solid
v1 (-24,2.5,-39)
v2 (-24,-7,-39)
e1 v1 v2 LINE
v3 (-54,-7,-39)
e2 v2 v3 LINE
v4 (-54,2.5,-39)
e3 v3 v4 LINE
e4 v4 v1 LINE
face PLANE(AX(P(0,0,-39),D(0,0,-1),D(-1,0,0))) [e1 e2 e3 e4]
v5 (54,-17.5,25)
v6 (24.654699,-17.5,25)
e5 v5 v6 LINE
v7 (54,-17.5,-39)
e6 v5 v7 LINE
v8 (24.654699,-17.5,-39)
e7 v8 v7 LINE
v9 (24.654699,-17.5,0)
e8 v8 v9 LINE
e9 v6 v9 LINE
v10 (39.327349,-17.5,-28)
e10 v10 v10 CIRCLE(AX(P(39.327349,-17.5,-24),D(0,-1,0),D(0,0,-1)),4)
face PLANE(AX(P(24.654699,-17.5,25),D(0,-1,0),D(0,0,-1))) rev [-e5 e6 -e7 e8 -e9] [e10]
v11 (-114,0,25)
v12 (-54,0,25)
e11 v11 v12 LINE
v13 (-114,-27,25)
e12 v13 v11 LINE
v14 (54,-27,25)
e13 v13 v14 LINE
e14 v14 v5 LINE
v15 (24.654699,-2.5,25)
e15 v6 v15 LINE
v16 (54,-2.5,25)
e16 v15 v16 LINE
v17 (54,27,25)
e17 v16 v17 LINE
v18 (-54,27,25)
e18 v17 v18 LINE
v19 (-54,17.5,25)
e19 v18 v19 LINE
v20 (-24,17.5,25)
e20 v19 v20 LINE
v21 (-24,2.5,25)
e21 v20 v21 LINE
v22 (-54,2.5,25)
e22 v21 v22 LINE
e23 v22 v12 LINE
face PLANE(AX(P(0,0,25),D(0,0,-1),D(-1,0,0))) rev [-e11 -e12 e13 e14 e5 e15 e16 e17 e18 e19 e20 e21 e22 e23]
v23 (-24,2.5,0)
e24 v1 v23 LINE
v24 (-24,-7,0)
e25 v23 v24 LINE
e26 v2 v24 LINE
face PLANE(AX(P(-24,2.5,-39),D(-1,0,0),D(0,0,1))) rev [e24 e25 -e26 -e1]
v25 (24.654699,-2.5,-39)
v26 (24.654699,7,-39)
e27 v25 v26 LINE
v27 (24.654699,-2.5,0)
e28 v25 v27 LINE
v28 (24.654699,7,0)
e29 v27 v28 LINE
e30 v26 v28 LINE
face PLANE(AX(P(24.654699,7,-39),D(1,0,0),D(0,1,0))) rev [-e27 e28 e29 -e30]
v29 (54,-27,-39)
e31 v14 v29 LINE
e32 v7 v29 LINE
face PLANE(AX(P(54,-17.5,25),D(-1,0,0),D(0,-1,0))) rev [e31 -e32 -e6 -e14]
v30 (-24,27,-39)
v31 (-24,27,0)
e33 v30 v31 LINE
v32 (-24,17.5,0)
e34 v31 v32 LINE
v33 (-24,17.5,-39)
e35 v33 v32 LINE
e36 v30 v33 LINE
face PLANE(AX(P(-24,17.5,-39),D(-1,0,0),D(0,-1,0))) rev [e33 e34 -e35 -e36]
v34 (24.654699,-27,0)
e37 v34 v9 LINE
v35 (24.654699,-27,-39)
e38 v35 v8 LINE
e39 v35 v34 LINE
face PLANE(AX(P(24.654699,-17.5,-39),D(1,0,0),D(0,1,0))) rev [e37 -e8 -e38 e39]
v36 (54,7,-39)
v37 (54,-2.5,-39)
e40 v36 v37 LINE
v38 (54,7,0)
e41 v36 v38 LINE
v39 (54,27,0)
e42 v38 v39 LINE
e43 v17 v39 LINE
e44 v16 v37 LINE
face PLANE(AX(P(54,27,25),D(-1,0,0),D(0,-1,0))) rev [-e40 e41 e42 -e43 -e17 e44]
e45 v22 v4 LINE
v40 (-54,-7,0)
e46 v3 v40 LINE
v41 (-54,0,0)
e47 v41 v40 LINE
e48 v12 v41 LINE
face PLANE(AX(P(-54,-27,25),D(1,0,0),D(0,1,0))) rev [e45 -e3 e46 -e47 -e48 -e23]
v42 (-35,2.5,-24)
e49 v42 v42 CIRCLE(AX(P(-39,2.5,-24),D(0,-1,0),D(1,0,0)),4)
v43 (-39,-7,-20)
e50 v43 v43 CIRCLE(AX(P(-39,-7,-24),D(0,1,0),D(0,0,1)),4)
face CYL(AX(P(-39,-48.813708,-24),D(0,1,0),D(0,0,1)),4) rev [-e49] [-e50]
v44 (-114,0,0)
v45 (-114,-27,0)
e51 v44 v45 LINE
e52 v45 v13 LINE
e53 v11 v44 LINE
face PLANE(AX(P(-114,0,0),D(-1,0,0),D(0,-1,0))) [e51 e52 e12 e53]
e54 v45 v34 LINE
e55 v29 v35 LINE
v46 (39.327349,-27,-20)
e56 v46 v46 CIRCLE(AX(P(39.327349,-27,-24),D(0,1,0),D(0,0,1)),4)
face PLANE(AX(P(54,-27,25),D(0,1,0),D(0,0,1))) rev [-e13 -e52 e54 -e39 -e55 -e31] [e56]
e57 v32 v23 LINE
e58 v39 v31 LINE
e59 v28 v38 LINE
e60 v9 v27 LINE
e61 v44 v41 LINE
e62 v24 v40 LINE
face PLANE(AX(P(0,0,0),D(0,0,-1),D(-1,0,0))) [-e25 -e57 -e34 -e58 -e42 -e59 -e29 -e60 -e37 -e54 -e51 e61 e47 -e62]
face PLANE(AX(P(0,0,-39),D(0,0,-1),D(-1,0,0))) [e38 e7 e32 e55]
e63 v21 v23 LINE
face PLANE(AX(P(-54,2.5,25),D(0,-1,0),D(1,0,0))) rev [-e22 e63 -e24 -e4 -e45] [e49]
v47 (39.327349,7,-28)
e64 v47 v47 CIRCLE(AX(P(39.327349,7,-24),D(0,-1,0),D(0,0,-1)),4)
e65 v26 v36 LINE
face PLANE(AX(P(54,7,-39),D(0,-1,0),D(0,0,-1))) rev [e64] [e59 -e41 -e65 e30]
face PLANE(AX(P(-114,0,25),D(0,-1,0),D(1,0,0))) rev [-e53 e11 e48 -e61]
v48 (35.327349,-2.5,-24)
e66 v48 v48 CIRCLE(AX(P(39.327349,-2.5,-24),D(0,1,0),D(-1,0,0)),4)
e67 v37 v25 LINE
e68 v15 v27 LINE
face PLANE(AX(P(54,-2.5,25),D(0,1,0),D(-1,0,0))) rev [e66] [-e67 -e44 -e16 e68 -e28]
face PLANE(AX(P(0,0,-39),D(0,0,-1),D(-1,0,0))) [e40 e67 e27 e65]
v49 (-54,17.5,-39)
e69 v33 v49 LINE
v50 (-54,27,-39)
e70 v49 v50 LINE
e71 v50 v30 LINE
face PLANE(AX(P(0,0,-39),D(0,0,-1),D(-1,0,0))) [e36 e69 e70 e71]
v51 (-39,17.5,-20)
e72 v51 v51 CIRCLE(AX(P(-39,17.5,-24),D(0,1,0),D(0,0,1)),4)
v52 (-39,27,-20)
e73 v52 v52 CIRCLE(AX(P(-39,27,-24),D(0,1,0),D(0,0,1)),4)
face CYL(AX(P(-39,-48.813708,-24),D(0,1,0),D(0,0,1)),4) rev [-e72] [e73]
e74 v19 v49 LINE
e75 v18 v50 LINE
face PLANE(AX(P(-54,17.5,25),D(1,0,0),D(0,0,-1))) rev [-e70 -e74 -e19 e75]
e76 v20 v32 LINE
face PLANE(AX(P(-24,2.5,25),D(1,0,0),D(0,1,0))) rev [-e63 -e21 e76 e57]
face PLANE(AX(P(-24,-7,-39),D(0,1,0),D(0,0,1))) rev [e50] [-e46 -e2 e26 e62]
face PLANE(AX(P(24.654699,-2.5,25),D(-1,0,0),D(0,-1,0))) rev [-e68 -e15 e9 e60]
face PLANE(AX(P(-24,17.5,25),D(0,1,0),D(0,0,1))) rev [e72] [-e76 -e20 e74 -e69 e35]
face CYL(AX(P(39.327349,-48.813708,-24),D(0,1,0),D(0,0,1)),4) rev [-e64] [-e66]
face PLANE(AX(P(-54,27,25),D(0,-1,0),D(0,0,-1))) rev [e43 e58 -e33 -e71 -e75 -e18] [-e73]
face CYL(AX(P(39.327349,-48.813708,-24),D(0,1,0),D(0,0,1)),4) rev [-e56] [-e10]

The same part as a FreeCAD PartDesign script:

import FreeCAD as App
import Part
import Sketcher

doc = App.newDocument("Part")
body = doc.addObject("PartDesign::Body", "Body")

sketch1 = body.newObject("Sketcher::SketchObject", "Sketch")
sketch1.AttachmentSupport = (doc.getObject("XY_Plane"), [""])
sketch1.MapMode = "FlatFace"
sketch1.addGeometry([
    Part.LineSegment(App.Vector(54, 27, 0), App.Vector(-54, 27, 0)),
    Part.LineSegment(App.Vector(-54, 27, 0), App.Vector(-54, 18, 0)),
    Part.LineSegment(App.Vector(-54, 18, 0), App.Vector(-24, 18, 0)),
    Part.LineSegment(App.Vector(-24, 18, 0), App.Vector(-24, 2, 0)),
    Part.LineSegment(App.Vector(-24, 2, 0), App.Vector(-54, 2, 0)),
    Part.LineSegment(App.Vector(-54, 2, 0), App.Vector(-54, -27, 0)),
    Part.LineSegment(App.Vector(-54, -27, 0), App.Vector(54, -27, 0)),
    Part.LineSegment(App.Vector(54, -27, 0), App.Vector(54, -18, 0)),
    Part.LineSegment(App.Vector(54, -18, 0), App.Vector(25, -18, 0)),
    Part.LineSegment(App.Vector(25, -18, 0), App.Vector(25, -2, 0)),
    Part.LineSegment(App.Vector(25, -2, 0), App.Vector(54, -2, 0)),
    Part.LineSegment(App.Vector(54, -2, 0), App.Vector(54, 27, 0)),
], False)
sketch1.addConstraint([
    Sketcher.Constraint("Coincident", 0, 2, 1, 1),
    Sketcher.Constraint("Coincident", 1, 2, 2, 1),
    Sketcher.Constraint("Coincident", 2, 2, 3, 1),
    Sketcher.Constraint("Coincident", 3, 2, 4, 1),
    Sketcher.Constraint("Coincident", 4, 2, 5, 1),
    Sketcher.Constraint("Coincident", 5, 2, 6, 1),
    Sketcher.Constraint("Coincident", 6, 2, 7, 1),
    Sketcher.Constraint("Coincident", 7, 2, 8, 1),
    Sketcher.Constraint("Coincident", 8, 2, 9, 1),
    Sketcher.Constraint("Coincident", 9, 2, 10, 1),
    Sketcher.Constraint("Coincident", 10, 2, 11, 1),
    Sketcher.Constraint("Coincident", 11, 2, 0, 1),
    Sketcher.Constraint("Horizontal", 0),
    Sketcher.Constraint("Vertical", 1),
    Sketcher.Constraint("Horizontal", 2),
    Sketcher.Constraint("Vertical", 3),
    Sketcher.Constraint("Horizontal", 4),
    Sketcher.Constraint("Vertical", 5),
    Sketcher.Constraint("Horizontal", 6),
    Sketcher.Constraint("Vertical", 7),
    Sketcher.Constraint("Horizontal", 8),
    Sketcher.Constraint("Vertical", 9),
    Sketcher.Constraint("Horizontal", 10),
    Sketcher.Constraint("Vertical", 11),
    Sketcher.Constraint("Symmetric", 0, 2, 6, 2, -1, 1),
    Sketcher.Constraint("Symmetric", 4, 2, 10, 2, -1, 1),
    Sketcher.Constraint("Vertical", 1, 2, 4, 2),
    Sketcher.Constraint("Equal", 1, 7),
    Sketcher.Constraint("DistanceX", 0, 2, 0, 1, 108.0),
    Sketcher.Constraint("DistanceX", 2, 1, 2, 2, 30.0),
    Sketcher.Constraint("DistanceY", 3, 2, 3, 1, 15.0),
    Sketcher.Constraint("DistanceY", 1, 2, 1, 1, 9.5),
    Sketcher.Constraint("DistanceY", 5, 2, 5, 1, 29.5),
    Sketcher.Constraint("DistanceX", 8, 2, 8, 1, 29.345301),
])
pad1 = body.newObject("PartDesign::Pad", "Pad")
pad1.Profile = sketch1
pad1.Length = 25

sketch2 = body.newObject("Sketcher::SketchObject", "Sketch001")
sketch2.AttachmentSupport = (doc.getObject("XY_Plane"), [""])
sketch2.MapMode = "FlatFace"
sketch2.addGeometry([
    Part.LineSegment(App.Vector(54, 7, 0), App.Vector(54, -2, 0)),
    Part.LineSegment(App.Vector(54, -2, 0), App.Vector(25, -2, 0)),
    Part.LineSegment(App.Vector(25, -2, 0), App.Vector(25, 7, 0)),
    Part.LineSegment(App.Vector(25, 7, 0), App.Vector(54, 7, 0)),
    Part.LineSegment(App.Vector(54, -18, 0), App.Vector(54, -27, 0)),
    Part.LineSegment(App.Vector(54, -27, 0), App.Vector(25, -27, 0)),
    Part.LineSegment(App.Vector(25, -27, 0), App.Vector(25, -18, 0)),
    Part.LineSegment(App.Vector(25, -18, 0), App.Vector(54, -18, 0)),
    Part.LineSegment(App.Vector(-24, 2, 0), App.Vector(-24, -7, 0)),
    Part.LineSegment(App.Vector(-24, -7, 0), App.Vector(-54, -7, 0)),
    Part.LineSegment(App.Vector(-54, -7, 0), App.Vector(-54, 2, 0)),
    Part.LineSegment(App.Vector(-54, 2, 0), App.Vector(-24, 2, 0)),
    Part.LineSegment(App.Vector(-24, 27, 0), App.Vector(-24, 18, 0)),
    Part.LineSegment(App.Vector(-24, 18, 0), App.Vector(-54, 18, 0)),
    Part.LineSegment(App.Vector(-54, 18, 0), App.Vector(-54, 27, 0)),
    Part.LineSegment(App.Vector(-54, 27, 0), App.Vector(-24, 27, 0)),
], False)
sketch2.addConstraint([
    Sketcher.Constraint("Coincident", 0, 2, 1, 1),
    Sketcher.Constraint("Coincident", 1, 2, 2, 1),
    Sketcher.Constraint("Coincident", 2, 2, 3, 1),
    Sketcher.Constraint("Coincident", 3, 2, 0, 1),
    Sketcher.Constraint("Coincident", 4, 2, 5, 1),
    Sketcher.Constraint("Coincident", 5, 2, 6, 1),
    Sketcher.Constraint("Coincident", 6, 2, 7, 1),
    Sketcher.Constraint("Coincident", 7, 2, 4, 1),
    Sketcher.Constraint("Coincident", 8, 2, 9, 1),
    Sketcher.Constraint("Coincident", 9, 2, 10, 1),
    Sketcher.Constraint("Coincident", 10, 2, 11, 1),
    Sketcher.Constraint("Coincident", 11, 2, 8, 1),
    Sketcher.Constraint("Coincident", 12, 2, 13, 1),
    Sketcher.Constraint("Coincident", 13, 2, 14, 1),
    Sketcher.Constraint("Coincident", 14, 2, 15, 1),
    Sketcher.Constraint("Coincident", 15, 2, 12, 1),
    Sketcher.Constraint("Vertical", 0),
    Sketcher.Constraint("Horizontal", 1),
    Sketcher.Constraint("Vertical", 2),
    Sketcher.Constraint("Horizontal", 3),
    Sketcher.Constraint("Vertical", 4),
    Sketcher.Constraint("Horizontal", 5),
    Sketcher.Constraint("Vertical", 6),
    Sketcher.Constraint("Horizontal", 7),
    Sketcher.Constraint("Vertical", 8),
    Sketcher.Constraint("Horizontal", 9),
    Sketcher.Constraint("Vertical", 10),
    Sketcher.Constraint("Horizontal", 11),
    Sketcher.Constraint("Vertical", 12),
    Sketcher.Constraint("Horizontal", 13),
    Sketcher.Constraint("Vertical", 14),
    Sketcher.Constraint("Horizontal", 15),
    Sketcher.Constraint("Symmetric", 3, 2, 9, 2, -1, 1),
    Sketcher.Constraint("Symmetric", 7, 2, 13, 2, -1, 1),
    Sketcher.Constraint("Vertical", 3, 2, 4, 2),
    Sketcher.Constraint("Vertical", 2, 2, 5, 2),
    Sketcher.Constraint("Vertical", 11, 2, 12, 2),
    Sketcher.Constraint("Equal", 2, 4),
    Sketcher.Constraint("Equal", 6, 8),
    Sketcher.Constraint("Equal", 10, 12),
    Sketcher.Constraint("DistanceX", 9, 2, 9, 1, 30.0),
    Sketcher.Constraint("DistanceY", 0, 2, 0, 1, 9.5),
    Sketcher.Constraint("DistanceX", -1, 1, 0, 2, 54.0),
    Sketcher.Constraint("DistanceY", -1, 1, 2, 2, 7.0),
    Sketcher.Constraint("DistanceY", 4, 2, -1, 1, 27.0),
    Sketcher.Constraint("DistanceX", 1, 2, 1, 1, 29.345301),
])
pad2 = body.newObject("PartDesign::Pad", "Pad001")
pad2.Profile = sketch2
pad2.Length = 39
pad2.Reversed = True

sketch3 = body.newObject("Sketcher::SketchObject", "Sketch002")
sketch3.AttachmentSupport = (doc.getObject("XZ_Plane"), [""])
sketch3.MapMode = "FlatFace"
sketch3.AttachmentOffset = App.Placement(App.Vector(0, 0, -27), App.Rotation())
sketch3.addGeometry([
    Part.Circle(App.Vector(39.3, -24, 0), App.Vector(0, 0, 1), 4),
    Part.Circle(App.Vector(-39, -24, 0), App.Vector(0, 0, 1), 4),
], False)
sketch3.addConstraint([
    Sketcher.Constraint("Equal", 0, 1),
    Sketcher.Constraint("Horizontal", 0, 3, 1, 3),
    Sketcher.Constraint("Diameter", 0, 8.0),
    Sketcher.Constraint("DistanceY", 0, 3, -1, 1, 24.0),
    Sketcher.Constraint("DistanceX", 1, 3, -1, 1, 39.0),
    Sketcher.Constraint("DistanceX", -1, 1, 0, 3, 39.327349),
])
pocket1 = body.newObject("PartDesign::Pocket", "Pocket")
pocket1.Profile = sketch3
pocket1.Length = 54.5
pocket1.Reversed = True

sketch4 = body.newObject("Sketcher::SketchObject", "Sketch003")
sketch4.AttachmentSupport = (doc.getObject("YZ_Plane"), [""])
sketch4.MapMode = "FlatFace"
sketch4.AttachmentOffset = App.Placement(App.Vector(0, 0, -54), App.Rotation())
sketch4.addGeometry([
    Part.LineSegment(App.Vector(0, 0, 0), App.Vector(-27, 0, 0)),
    Part.LineSegment(App.Vector(-27, 0, 0), App.Vector(-27, 25, 0)),
    Part.LineSegment(App.Vector(-27, 25, 0), App.Vector(0, 25, 0)),
    Part.LineSegment(App.Vector(0, 25, 0), App.Vector(0, 0, 0)),
], False)
sketch4.addConstraint([
    Sketcher.Constraint("Coincident", 0, 2, 1, 1),
    Sketcher.Constraint("Coincident", 1, 2, 2, 1),
    Sketcher.Constraint("Coincident", 2, 2, 3, 1),
    Sketcher.Constraint("Coincident", 3, 2, 0, 1),
    Sketcher.Constraint("Horizontal", 0),
    Sketcher.Constraint("Vertical", 1),
    Sketcher.Constraint("Horizontal", 2),
    Sketcher.Constraint("Vertical", 3),
    Sketcher.Constraint("Coincident", 3, 2, -1, 1),
    Sketcher.Constraint("DistanceX", 0, 2, 0, 1, 27.0),
    Sketcher.Constraint("DistanceY", 1, 1, 1, 2, 25.0),
])
pad3 = body.newObject("PartDesign::Pad", "Pad002")
pad3.Profile = sketch4
pad3.Length = 60
pad3.Reversed = True

doc.recompute()
